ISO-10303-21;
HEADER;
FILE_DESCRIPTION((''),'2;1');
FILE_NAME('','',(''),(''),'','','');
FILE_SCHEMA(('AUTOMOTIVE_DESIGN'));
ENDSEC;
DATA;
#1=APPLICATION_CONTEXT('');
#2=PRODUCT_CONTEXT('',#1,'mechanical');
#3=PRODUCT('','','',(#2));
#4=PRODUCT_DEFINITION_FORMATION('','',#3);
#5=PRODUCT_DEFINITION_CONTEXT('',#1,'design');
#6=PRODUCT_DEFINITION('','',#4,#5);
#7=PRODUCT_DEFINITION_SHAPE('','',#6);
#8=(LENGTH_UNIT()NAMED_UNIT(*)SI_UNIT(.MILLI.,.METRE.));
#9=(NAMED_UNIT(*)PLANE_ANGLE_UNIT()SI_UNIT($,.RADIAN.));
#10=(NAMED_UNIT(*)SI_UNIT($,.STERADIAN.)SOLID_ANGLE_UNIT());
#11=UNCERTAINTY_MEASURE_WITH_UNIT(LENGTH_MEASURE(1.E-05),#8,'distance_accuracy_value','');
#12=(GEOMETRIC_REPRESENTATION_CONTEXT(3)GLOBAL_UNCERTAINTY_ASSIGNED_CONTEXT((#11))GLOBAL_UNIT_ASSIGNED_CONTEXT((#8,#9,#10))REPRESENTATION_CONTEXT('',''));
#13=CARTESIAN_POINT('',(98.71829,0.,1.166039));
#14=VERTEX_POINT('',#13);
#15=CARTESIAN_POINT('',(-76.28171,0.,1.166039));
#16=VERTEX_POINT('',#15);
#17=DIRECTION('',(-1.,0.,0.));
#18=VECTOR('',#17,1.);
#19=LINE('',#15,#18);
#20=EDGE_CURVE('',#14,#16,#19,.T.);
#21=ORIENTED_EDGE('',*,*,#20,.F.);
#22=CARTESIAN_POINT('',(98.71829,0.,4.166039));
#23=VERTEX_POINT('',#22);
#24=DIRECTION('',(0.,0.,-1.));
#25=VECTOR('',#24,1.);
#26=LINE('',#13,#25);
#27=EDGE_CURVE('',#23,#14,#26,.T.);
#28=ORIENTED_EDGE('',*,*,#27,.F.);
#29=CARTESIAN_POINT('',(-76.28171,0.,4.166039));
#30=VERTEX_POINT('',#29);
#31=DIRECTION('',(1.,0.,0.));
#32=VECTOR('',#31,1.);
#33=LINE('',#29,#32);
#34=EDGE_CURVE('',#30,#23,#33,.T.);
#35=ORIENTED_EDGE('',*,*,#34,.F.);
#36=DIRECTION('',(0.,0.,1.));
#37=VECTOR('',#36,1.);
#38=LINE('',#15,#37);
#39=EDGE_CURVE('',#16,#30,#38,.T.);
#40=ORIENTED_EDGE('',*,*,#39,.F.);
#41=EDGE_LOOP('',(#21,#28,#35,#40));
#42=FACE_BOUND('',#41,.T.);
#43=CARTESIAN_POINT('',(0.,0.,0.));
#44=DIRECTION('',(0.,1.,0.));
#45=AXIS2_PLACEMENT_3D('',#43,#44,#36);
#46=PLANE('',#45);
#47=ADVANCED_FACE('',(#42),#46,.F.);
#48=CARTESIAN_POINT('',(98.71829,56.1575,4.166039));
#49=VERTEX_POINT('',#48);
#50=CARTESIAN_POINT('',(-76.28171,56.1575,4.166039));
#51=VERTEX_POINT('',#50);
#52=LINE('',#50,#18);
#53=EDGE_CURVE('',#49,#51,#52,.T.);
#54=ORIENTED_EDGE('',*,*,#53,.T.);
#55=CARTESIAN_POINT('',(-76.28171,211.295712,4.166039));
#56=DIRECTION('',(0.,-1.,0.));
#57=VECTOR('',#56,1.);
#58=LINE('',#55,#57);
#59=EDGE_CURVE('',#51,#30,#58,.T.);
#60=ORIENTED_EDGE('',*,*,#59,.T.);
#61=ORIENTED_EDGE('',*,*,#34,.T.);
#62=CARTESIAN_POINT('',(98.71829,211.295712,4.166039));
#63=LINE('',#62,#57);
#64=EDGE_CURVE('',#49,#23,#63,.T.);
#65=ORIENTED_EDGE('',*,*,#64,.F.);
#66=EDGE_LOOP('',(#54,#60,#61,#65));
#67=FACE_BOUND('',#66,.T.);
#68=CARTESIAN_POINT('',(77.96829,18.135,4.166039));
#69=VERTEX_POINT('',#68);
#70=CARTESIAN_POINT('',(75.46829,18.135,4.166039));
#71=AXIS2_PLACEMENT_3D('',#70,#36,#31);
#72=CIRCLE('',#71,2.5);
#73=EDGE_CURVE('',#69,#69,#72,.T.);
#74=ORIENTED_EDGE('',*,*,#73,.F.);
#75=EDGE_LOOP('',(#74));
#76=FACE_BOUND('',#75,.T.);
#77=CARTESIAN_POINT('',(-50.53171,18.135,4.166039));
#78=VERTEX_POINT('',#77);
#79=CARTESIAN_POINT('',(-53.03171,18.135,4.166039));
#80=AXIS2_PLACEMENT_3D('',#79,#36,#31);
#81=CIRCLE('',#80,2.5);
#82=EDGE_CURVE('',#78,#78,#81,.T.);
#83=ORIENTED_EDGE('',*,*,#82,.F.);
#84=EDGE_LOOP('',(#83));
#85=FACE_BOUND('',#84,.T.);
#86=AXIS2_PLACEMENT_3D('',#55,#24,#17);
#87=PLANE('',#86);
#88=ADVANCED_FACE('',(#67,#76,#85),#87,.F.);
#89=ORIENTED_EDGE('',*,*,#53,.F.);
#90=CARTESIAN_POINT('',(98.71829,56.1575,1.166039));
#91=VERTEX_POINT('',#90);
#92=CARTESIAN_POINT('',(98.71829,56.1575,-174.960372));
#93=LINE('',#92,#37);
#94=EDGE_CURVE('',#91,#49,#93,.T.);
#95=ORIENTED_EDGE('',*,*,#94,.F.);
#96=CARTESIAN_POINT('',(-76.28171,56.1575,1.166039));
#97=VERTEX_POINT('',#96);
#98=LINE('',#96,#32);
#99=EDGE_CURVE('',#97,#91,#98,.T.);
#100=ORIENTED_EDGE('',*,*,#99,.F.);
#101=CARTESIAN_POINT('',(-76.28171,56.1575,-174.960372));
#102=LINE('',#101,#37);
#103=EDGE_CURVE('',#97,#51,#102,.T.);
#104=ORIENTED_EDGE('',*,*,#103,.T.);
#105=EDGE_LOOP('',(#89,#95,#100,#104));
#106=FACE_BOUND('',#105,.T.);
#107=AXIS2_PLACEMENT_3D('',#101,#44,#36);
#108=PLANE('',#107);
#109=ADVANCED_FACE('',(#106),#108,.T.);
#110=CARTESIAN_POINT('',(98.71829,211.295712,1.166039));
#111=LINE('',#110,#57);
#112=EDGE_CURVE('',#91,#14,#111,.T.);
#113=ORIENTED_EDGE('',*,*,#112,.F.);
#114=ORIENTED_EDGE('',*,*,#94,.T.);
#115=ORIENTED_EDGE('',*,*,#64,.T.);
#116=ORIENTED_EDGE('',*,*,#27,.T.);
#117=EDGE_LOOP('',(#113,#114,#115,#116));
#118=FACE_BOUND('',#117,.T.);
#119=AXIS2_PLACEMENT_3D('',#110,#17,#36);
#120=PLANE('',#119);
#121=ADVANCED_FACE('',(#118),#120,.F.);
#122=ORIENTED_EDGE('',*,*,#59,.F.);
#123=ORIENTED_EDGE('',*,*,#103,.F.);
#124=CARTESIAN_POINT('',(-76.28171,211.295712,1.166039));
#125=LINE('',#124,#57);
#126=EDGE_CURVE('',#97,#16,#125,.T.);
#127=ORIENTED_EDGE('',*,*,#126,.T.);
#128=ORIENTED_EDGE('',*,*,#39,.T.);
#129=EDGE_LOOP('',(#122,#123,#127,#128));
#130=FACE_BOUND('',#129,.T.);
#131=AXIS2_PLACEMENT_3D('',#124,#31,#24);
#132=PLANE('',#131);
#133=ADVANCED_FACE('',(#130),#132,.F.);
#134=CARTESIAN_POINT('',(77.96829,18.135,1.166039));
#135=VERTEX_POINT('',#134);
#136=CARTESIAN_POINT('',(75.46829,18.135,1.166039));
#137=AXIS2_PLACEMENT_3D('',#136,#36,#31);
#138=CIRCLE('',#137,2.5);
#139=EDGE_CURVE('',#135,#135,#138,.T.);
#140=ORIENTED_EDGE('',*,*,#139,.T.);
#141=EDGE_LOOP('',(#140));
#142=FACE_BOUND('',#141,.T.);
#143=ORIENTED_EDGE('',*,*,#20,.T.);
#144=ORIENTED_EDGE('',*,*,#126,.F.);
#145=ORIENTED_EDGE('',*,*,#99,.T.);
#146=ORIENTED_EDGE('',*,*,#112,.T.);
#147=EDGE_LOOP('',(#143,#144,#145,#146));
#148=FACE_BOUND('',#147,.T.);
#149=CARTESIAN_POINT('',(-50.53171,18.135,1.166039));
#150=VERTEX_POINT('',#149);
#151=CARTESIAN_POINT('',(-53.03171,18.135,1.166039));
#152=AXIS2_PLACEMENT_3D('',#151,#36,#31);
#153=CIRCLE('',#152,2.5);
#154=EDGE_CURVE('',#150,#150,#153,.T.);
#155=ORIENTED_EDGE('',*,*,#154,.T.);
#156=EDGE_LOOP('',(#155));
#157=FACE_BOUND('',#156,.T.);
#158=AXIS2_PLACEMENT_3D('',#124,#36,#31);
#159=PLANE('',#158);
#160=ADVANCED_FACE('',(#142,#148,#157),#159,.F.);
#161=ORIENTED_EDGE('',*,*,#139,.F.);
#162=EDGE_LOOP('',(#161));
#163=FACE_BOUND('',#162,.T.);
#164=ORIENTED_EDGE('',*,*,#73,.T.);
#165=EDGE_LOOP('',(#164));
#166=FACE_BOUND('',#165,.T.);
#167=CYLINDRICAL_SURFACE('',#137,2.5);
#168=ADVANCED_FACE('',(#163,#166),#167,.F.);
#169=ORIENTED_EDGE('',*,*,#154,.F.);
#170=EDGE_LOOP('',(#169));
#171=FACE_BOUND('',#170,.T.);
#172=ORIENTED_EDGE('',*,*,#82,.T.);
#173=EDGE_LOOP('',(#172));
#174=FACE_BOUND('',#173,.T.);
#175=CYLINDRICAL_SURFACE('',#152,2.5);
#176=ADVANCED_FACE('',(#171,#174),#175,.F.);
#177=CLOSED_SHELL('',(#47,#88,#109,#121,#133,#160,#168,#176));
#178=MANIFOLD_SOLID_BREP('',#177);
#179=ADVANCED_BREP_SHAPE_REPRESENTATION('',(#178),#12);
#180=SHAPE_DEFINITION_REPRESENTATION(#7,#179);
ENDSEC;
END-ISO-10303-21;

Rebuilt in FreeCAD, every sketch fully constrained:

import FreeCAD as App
import Part
import Sketcher

V = App.Vector

doc = App.newDocument("Part")
params = doc.addObject("Spreadsheet::Sheet", "Params")
for row, (alias, value) in enumerate([
    ("sketch1_width", "175 mm"),
    ("sketch1_height", "3 mm"),
    ("pad1_length", "36.27 mm"),
    ("sketch2_diameter", "5 mm"),
    ("sketch3_width", "175 mm"),
    ("pad2_length", "3 mm"),
], start=1):
    params.set(f"A{row}", alias)
    params.set(f"B{row}", "=" + value)
    params.setAlias(f"B{row}", alias)

body = doc.addObject("PartDesign::Body", "Body")

# Sketch on XZ plane
sketch1 = body.newObject("Sketcher::SketchObject", "Sketch")
sketch1.AttachmentSupport = (doc.getObject("XZ_Plane"), [""])
sketch1.MapMode = "FlatFace"
sketch1.addGeometry([
    Part.LineSegment(V(-76.28171, 1.166039, 0), V(-76.28171, 4.166039, 0)),
    Part.LineSegment(V(-76.28171, 4.166039, 0), V(98.71829, 4.166039, 0)),
    Part.LineSegment(V(98.71829, 4.166039, 0), V(98.71829, 1.166039, 0)),
    Part.LineSegment(V(98.71829, 1.166039, 0), V(-76.28171, 1.166039, 0)),
], False)
sketch1.addConstraint([
    Sketcher.Constraint("Coincident", 0, 2, 1, 1),
    Sketcher.Constraint("Coincident", 1, 2, 2, 1),
    Sketcher.Constraint("Coincident", 2, 2, 3, 1),
    Sketcher.Constraint("Coincident", 3, 2, 0, 1),
    Sketcher.Constraint("Vertical", 0),
    Sketcher.Constraint("Horizontal", 1),
    Sketcher.Constraint("Vertical", 2),
    Sketcher.Constraint("Horizontal", 3),
    Sketcher.Constraint("DistanceX", 1, 1, 1, 2, 175.0),
    Sketcher.Constraint("DistanceY", 0, 1, 0, 2, 3.0),
    Sketcher.Constraint("DistanceX", 0, 2, -1, 1, 76.28171),
    Sketcher.Constraint("DistanceY", -1, 1, 0, 2, 4.166039),
])
sketch1.setExpression("Constraints[8]", "Params.sketch1_width")
sketch1.setExpression("Constraints[9]", "Params.sketch1_height")
pad1 = body.newObject("PartDesign::Pad", "Pad")
pad1.Profile = sketch1
pad1.setExpression("Length", "Params.pad1_length")
pad1.Reversed = True

# Sketch on XY plane
sketch2 = body.newObject("Sketcher::SketchObject", "Sketch001")
sketch2.AttachmentSupport = (doc.getObject("XY_Plane"), [""])
sketch2.MapMode = "FlatFace"
sketch2.AttachmentOffset = App.Placement(V(0, 0, 4.166039), App.Rotation())
sketch2.addGeometry([
    Part.Circle(V(-53.03171, 18.135, 0), V(0, 0, 1), 2.5),
    Part.Circle(V(75.46829, 18.135, 0), V(0, 0, 1), 2.5),
], False)
sketch2.addConstraint([
    Sketcher.Constraint("Equal", 0, 1),
    Sketcher.Constraint("Horizontal", 0, 3, 1, 3),
    Sketcher.Constraint("Diameter", 0, 5.0),
    Sketcher.Constraint("DistanceX", 0, 3, 1, 3, 128.5),
    Sketcher.Constraint("DistanceY", -1, 1, 0, 3, 18.135),
    Sketcher.Constraint("DistanceX", 0, 3, -1, 1, 53.03171),
])
sketch2.setExpression("Constraints[2]", "Params.sketch2_diameter")
pocket1 = body.newObject("PartDesign::Pocket", "Pocket")
pocket1.Profile = sketch2
pocket1.Type = "ThroughAll"

# Sketch on XY plane
sketch3 = body.newObject("Sketcher::SketchObject", "Sketch002")
sketch3.AttachmentSupport = (doc.getObject("XY_Plane"), [""])
sketch3.MapMode = "FlatFace"
sketch3.AttachmentOffset = App.Placement(V(0, 0, 4.166039), App.Rotation())
sketch3.addGeometry([
    Part.LineSegment(V(-76.28171, 56.1575, 0), V(-76.28171, 36.27, 0)),
    Part.LineSegment(V(-76.28171, 36.27, 0), V(98.71829, 36.27, 0)),
    Part.LineSegment(V(98.71829, 36.27, 0), V(98.71829, 56.1575, 0)),
    Part.LineSegment(V(98.71829, 56.1575, 0), V(-76.28171, 56.1575, 0)),
], False)
sketch3.addConstraint([
    Sketcher.Constraint("Coincident", 0, 2, 1, 1),
    Sketcher.Constraint("Coincident", 1, 2, 2, 1),
    Sketcher.Constraint("Coincident", 2, 2, 3, 1),
    Sketcher.Constraint("Coincident", 3, 2, 0, 1),
    Sketcher.Constraint("Vertical", 0),
    Sketcher.Constraint("Horizontal", 1),
    Sketcher.Constraint("Vertical", 2),
    Sketcher.Constraint("Horizontal", 3),
    Sketcher.Constraint("DistanceX", 1, 1, 1, 2, 175.0),
    Sketcher.Constraint("DistanceY", -1, 1, 0, 2, 36.27),
    Sketcher.Constraint("DistanceY", 0, 2, 0, 1, 19.8875),
    Sketcher.Constraint("DistanceX", 0, 2, -1, 1, 76.28171),
])
sketch3.setExpression("Constraints[8]", "Params.sketch3_width")
pad2 = body.newObject("PartDesign::Pad", "Pad001")
pad2.Profile = sketch3
pad2.setExpression("Length", "Params.pad2_length")
pad2.Reversed = True

doc.recompute()
